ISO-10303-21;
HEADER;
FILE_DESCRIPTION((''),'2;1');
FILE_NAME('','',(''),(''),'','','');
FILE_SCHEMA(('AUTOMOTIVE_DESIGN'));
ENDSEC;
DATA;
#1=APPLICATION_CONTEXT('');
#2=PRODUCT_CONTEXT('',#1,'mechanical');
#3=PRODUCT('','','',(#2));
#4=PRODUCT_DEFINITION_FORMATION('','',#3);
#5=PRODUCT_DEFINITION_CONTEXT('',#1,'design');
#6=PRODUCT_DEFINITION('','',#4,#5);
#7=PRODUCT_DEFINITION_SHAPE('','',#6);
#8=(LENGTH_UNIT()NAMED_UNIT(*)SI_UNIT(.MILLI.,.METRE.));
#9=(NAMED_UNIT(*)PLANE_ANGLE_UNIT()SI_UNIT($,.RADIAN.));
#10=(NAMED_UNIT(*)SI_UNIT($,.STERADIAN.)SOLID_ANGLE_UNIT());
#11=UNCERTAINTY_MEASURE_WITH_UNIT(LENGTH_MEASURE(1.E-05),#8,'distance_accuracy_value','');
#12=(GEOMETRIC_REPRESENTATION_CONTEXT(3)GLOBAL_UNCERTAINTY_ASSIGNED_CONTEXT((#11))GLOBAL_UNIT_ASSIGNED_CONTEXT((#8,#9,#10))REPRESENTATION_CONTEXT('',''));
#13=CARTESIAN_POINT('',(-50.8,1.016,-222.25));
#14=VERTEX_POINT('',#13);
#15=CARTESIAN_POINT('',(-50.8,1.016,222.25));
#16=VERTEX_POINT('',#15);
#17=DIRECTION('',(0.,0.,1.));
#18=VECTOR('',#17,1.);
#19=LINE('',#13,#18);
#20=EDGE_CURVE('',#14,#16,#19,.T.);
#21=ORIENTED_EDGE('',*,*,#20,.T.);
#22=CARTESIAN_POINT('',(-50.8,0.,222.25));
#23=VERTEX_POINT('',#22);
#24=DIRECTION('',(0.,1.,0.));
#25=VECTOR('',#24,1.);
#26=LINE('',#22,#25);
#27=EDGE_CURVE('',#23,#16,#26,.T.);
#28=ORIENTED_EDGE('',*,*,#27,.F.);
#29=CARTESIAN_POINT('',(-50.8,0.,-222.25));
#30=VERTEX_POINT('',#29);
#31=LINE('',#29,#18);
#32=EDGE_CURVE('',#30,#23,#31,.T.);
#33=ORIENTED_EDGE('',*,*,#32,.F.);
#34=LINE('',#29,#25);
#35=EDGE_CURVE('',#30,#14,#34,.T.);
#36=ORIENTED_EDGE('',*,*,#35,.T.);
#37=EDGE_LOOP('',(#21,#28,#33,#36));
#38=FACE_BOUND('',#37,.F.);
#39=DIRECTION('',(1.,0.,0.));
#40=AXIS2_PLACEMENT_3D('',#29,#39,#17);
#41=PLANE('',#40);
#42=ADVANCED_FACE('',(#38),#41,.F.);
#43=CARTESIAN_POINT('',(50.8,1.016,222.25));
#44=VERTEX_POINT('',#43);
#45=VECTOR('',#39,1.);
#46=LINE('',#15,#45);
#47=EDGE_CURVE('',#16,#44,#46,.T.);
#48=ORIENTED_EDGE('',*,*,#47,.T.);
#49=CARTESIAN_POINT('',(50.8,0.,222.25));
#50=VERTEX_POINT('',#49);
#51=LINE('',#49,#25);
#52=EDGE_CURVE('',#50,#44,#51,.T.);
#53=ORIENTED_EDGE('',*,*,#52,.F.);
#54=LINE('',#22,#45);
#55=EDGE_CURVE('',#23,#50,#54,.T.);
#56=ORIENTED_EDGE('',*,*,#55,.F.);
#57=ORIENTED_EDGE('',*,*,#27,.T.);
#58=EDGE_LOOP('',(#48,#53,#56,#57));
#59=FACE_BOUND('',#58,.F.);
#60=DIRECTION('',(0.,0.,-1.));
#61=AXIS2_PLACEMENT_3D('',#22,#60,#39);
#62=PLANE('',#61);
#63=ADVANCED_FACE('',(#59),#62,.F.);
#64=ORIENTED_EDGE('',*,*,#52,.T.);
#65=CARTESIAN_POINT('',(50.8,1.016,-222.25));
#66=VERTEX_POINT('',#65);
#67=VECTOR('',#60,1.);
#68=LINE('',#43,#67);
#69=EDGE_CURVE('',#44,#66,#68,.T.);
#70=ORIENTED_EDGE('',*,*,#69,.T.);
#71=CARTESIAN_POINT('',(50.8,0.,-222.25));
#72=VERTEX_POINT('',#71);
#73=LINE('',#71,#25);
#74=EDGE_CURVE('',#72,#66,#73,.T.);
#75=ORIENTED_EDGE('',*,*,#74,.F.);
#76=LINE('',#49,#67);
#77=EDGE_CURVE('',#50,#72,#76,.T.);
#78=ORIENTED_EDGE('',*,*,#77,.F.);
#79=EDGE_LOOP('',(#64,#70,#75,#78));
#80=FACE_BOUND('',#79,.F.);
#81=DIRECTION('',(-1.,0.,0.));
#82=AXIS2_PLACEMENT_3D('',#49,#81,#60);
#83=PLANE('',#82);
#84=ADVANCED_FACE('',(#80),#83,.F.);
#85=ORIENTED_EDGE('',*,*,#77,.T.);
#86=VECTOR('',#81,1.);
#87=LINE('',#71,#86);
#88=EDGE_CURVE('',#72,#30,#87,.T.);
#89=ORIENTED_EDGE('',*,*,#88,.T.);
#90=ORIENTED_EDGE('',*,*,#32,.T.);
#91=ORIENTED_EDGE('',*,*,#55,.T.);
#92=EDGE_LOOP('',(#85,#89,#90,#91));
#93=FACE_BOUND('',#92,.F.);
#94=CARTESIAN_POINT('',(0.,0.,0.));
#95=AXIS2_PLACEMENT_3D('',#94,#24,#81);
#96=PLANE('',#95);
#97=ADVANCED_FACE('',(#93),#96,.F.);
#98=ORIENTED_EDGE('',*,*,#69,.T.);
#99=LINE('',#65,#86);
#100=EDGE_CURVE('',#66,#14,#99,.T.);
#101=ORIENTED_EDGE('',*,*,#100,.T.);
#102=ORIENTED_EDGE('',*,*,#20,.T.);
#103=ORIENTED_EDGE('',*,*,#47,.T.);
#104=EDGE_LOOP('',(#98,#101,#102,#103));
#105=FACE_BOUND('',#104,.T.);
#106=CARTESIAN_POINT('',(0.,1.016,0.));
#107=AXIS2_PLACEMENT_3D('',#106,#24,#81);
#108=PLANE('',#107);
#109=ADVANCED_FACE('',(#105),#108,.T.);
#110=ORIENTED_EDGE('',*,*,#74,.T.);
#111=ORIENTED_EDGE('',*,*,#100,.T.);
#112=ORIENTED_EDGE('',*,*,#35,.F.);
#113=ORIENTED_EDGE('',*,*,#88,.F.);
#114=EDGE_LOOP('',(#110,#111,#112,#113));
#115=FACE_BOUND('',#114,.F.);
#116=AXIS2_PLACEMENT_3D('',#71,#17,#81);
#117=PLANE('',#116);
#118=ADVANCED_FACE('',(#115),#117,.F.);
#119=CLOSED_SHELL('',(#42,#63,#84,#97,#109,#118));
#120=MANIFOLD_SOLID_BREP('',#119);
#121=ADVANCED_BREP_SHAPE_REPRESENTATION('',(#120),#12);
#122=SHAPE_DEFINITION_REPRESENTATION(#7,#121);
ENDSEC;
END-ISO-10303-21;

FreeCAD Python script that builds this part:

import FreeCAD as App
import Part
import Sketcher
from FreeCAD import Vector
Q = App.Units.Quantity


def add_polygon(sketch, points):
    """Adds a closed chain of lines whose ends are joined by coincident constraints."""
    first, n = sketch.GeometryCount, len(points)
    for a, b in zip(points, points[1:] + points[:1]):
        sketch.addGeometry(Part.LineSegment(App.Vector(*a, 0), App.Vector(*b, 0)), False)
    for i in range(n):
        sketch.addConstraint(Sketcher.Constraint("Coincident", first + i, 2, first + (i + 1) % n, 1))

doc = App.newDocument("Part")
body = doc.addObject("PartDesign::Body", "Body")

sketch1 = body.newObject("Sketcher::SketchObject", "Sketch")
sketch1.AttachmentSupport = (doc.getObject("XZ_Plane"), [""])
sketch1.MapMode = "FlatFace"
add_polygon(sketch1, [(-51, -222), (-51, 222), (51, 222), (51, -222)])
sketch1.addConstraint(Sketcher.Constraint("Vertical", 0))
sketch1.addConstraint(Sketcher.Constraint("Horizontal", 1))
sketch1.addConstraint(Sketcher.Constraint("Vertical", 2))
sketch1.addConstraint(Sketcher.Constraint("Horizontal", 3))
sketch1.addConstraint(Sketcher.Constraint("Symmetric", 0, 2, 2, 2, -1, 1))
sketch1.addConstraint(Sketcher.Constraint("DistanceX", 1, 1, 1, 2, Q("4 in")))
sketch1.addConstraint(Sketcher.Constraint("DistanceY", 0, 1, 0, 2, Q("17.5 in")))
pad1 = body.newObject("PartDesign::Pad", "Pad")
pad1.Profile = sketch1
pad1.Length = Q("0.04 in")
pad1.Reversed = True

doc.recompute()
